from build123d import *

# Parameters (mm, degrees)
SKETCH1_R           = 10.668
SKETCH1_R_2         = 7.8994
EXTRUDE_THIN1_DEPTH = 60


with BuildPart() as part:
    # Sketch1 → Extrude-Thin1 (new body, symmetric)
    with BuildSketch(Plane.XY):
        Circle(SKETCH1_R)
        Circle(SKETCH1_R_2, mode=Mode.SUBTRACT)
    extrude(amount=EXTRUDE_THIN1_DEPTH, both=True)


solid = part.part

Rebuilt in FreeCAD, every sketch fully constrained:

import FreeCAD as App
import Part
import Sketcher
from FreeCAD import Vector
Q = App.Units.Quantity

doc = App.newDocument("Part")
params = doc.addObject("Spreadsheet::Sheet", "Params")
for row, (alias, value) in enumerate([
    ("sketch1_diameter", "0.84 in"),
    ("sketch1_diameter2", "0.622 in"),
    ("pad1_length", "120 mm"),
], start=1):
    params.set(f"A{row}", alias)
    params.set(f"B{row}", "=" + value)
    params.setAlias(f"B{row}", alias)

body = doc.addObject("PartDesign::Body", "Body")

# Sketch on XY plane
sketch1 = body.newObject("Sketcher::SketchObject", "Sketch")
sketch1.AttachmentSupport = (doc.getObject("XY_Plane"), [""])
sketch1.MapMode = "FlatFace"
sketch1.addGeometry(Part.Circle(Vector(0, 0, 0), Vector(0, 0, 1), 11), False)
sketch1.addGeometry(Part.Circle(Vector(0, 0, 0), Vector(0, 0, 1), 8), False)
sketch1.addConstraint(Sketcher.Constraint("Coincident", 0, 3, -1, 1))
sketch1.addConstraint(Sketcher.Constraint("Coincident", 1, 3, -1, 1))
sketch1.addConstraint(Sketcher.Constraint("Diameter", 0, Q("0.84 in")))
sketch1.addConstraint(Sketcher.Constraint("Diameter", 1, Q("0.622 in")))
sketch1.setExpression("Constraints[2]", "Params.sketch1_diameter")
sketch1.setExpression("Constraints[3]", "Params.sketch1_diameter2")
pad1 = body.newObject("PartDesign::Pad", "Pad")
pad1.Profile = sketch1
pad1.setExpression("Length", "Params.pad1_length")
pad1.Midplane = True

doc.recompute()
